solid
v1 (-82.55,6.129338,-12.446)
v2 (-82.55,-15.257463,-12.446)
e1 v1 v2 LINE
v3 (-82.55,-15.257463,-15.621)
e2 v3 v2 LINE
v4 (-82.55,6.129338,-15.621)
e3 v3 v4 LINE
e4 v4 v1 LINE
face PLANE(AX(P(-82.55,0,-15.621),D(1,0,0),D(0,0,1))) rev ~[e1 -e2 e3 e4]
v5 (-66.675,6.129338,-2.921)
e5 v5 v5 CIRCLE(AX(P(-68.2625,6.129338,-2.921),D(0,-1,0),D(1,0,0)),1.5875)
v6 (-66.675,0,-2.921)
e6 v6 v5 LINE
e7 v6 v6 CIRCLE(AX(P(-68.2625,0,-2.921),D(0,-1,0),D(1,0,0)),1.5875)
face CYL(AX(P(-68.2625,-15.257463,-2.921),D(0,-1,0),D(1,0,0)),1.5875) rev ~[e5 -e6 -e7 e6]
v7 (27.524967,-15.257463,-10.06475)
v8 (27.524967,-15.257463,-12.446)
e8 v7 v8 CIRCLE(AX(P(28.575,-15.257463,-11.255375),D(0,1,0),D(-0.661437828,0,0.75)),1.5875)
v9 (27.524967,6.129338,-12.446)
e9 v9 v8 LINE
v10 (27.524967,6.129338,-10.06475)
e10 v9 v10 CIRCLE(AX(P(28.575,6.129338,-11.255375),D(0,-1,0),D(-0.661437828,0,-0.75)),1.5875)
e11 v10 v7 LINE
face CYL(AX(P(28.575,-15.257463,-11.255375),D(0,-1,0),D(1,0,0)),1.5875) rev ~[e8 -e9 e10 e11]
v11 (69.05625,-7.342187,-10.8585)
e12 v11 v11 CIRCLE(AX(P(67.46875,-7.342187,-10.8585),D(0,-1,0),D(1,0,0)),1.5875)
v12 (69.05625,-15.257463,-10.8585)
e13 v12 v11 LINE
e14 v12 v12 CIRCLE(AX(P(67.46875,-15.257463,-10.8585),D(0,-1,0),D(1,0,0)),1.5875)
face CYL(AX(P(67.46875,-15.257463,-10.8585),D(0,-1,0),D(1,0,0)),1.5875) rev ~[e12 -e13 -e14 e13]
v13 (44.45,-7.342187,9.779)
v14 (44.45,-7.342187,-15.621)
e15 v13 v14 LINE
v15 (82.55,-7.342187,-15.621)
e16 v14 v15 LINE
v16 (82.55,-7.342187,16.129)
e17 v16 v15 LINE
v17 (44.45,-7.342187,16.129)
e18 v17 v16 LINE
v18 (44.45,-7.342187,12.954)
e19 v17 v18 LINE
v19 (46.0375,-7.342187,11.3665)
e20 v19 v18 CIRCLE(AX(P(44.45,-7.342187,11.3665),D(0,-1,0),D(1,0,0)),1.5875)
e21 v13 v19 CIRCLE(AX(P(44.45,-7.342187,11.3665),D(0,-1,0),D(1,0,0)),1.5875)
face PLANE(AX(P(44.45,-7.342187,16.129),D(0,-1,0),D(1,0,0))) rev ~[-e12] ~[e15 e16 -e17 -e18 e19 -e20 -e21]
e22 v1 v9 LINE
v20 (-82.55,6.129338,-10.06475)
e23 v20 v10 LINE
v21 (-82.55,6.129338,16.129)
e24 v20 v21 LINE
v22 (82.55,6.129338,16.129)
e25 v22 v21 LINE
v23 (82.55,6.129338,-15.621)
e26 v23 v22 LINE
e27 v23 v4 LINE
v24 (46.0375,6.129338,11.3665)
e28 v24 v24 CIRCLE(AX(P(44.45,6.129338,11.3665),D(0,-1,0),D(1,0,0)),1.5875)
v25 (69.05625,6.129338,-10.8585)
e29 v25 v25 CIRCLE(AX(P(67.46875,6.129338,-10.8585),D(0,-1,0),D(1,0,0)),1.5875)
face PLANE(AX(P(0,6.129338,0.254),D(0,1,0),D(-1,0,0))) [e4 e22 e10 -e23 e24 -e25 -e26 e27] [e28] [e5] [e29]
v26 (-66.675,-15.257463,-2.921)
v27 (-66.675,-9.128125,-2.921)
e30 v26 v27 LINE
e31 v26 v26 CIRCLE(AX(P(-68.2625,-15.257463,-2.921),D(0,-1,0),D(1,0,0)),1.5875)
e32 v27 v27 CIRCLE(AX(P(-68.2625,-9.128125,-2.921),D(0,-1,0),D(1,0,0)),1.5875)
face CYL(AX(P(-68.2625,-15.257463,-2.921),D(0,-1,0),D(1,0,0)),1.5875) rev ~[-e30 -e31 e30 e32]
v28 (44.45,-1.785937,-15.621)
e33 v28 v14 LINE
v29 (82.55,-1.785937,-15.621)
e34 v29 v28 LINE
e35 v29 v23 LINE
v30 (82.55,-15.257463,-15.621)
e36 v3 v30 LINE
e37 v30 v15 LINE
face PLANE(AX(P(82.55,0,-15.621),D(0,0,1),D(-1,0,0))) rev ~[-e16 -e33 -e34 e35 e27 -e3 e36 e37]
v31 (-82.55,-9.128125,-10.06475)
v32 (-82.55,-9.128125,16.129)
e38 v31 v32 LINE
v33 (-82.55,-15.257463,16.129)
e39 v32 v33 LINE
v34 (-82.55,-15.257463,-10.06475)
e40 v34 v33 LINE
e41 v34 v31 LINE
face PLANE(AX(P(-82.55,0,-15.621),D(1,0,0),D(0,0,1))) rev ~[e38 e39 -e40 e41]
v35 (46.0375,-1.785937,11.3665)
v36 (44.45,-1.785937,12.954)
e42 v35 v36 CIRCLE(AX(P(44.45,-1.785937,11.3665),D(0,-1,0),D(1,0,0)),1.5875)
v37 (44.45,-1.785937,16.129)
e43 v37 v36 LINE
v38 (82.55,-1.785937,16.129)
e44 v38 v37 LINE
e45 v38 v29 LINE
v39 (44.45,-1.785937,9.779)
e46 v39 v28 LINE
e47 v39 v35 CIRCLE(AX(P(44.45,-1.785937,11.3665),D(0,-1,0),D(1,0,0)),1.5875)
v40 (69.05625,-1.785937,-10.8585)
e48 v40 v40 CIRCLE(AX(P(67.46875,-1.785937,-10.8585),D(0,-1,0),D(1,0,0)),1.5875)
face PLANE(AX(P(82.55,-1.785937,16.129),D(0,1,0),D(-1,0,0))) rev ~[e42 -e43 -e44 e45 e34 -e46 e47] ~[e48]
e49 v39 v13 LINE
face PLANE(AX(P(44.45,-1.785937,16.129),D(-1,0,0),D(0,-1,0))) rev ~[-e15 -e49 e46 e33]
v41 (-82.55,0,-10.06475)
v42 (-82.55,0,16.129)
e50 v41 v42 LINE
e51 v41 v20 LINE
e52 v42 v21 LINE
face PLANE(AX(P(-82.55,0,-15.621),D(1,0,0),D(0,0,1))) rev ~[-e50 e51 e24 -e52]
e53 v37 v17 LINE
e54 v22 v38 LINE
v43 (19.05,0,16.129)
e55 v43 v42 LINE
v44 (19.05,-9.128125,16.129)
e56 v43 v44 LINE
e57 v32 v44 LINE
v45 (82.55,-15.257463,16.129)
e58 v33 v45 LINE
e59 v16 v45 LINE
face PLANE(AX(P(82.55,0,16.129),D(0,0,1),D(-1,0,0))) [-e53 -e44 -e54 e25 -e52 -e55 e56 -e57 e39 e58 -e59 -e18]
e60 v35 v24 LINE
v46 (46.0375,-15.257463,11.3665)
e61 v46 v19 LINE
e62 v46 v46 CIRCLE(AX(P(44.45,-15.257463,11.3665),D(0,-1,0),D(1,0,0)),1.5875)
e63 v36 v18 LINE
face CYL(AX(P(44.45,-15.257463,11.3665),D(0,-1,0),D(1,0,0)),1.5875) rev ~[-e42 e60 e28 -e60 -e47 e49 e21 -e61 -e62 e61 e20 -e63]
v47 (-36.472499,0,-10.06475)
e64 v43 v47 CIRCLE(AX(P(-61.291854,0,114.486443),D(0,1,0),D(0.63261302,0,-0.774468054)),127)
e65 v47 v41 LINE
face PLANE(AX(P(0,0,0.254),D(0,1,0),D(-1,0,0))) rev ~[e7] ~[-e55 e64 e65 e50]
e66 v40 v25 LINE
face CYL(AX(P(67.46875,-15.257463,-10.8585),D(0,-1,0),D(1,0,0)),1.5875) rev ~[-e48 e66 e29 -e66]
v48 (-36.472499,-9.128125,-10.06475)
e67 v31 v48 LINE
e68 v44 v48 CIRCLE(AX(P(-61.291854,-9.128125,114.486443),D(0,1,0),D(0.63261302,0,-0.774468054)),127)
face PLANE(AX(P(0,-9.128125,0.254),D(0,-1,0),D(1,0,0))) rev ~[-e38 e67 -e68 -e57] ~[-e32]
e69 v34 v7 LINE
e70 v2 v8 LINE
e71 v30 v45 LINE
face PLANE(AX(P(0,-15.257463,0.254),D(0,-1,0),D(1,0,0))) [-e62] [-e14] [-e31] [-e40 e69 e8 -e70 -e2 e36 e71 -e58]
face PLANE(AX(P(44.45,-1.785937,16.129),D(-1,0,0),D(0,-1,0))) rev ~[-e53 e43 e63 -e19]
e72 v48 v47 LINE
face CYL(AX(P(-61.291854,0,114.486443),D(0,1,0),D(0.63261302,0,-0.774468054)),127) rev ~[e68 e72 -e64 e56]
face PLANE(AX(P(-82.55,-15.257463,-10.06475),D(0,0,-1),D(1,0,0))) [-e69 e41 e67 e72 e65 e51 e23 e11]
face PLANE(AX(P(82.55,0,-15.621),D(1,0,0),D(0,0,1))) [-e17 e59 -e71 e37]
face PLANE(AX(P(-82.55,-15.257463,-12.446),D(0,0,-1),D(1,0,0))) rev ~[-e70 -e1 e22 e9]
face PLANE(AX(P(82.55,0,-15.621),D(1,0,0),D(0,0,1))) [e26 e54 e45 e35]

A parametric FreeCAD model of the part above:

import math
import FreeCAD as App
import Part
import Sketcher
from FreeCAD import Vector
Q = App.Units.Quantity


def add_polygon(sketch, points):
    """Adds a closed chain of lines whose ends are joined by coincident constraints."""
    first, n = sketch.GeometryCount, len(points)
    for a, b in zip(points, points[1:] + points[:1]):
        sketch.addGeometry(Part.LineSegment(App.Vector(*a, 0), App.Vector(*b, 0)), False)
    for i in range(n):
        sketch.addConstraint(Sketcher.Constraint("Coincident", first + i, 2, first + (i + 1) % n, 1))

doc = App.newDocument("Part")
params = doc.addObject("Spreadsheet::Sheet", "Params")
for row, (alias, value) in enumerate([
    ("sketch1_radius", "5 in"),
    ("sketch1_width", "1 in"),
    ("sketch1_width2", "6.5 in"),
    ("sketch1_width3", "2.5 in"),
    ("sketch1_height", "1.25 in"),
    ("pad1_length", "0.359375 in"),
    ("sketch2_width", "6.5 in"),
    ("sketch2_height", "1.25 in"),
    ("pad2_length", "6.129338 mm"),
    ("sketch3_width", "6.5 in"),
    ("sketch3_height", "1.25 in"),
    ("pad3_length", "6.129338 mm"),
    ("sketch4_width", "4.375 in"),
    ("sketch4_height", "0.09375 in"),
    ("sketch5_diameter", "0.125 in"),
    ("sketch6_width", "1.5 in"),
    ("sketch6_height", "0.21875 in"),
], start=1):
    params.set(f"A{row}", alias)
    params.set(f"B{row}", "=" + value)
    params.setAlias(f"B{row}", alias)

body = doc.addObject("PartDesign::Body", "Body")

# Sketch on XZ plane
sketch1 = body.newObject("Sketcher::SketchObject", "Sketch")
sketch1.AttachmentSupport = (doc.getObject("XZ_Plane"), [""])
sketch1.MapMode = "FlatFace"
sketch1.addGeometry(Part.LineSegment(Vector(-57.1, -12.4, 0), Vector(-82.5, -12.4, 0)), False)
sketch1.addGeometry(Part.LineSegment(Vector(-82.5, -12.4, 0), Vector(-82.5, -15.6, 0)), False)
sketch1.addGeometry(Part.LineSegment(Vector(-82.5, -15.6, 0), Vector(82.5, -15.6, 0)), False)
sketch1.addGeometry(Part.LineSegment(Vector(82.5, -15.6, 0), Vector(82.5, 16.1, 0)), False)
sketch1.addGeometry(Part.LineSegment(Vector(82.5, 16.1, 0), Vector(19.1, 16.1, 0)), False)
sketch1.addGeometry(Part.ArcOfCircle(Part.Circle(Vector(-61.3, 114.5, 0), Vector(0, 0, 1), 127), math.radians(-88), math.radians(-51)), False)
sketch1.addConstraint(Sketcher.Constraint("Coincident", 0, 2, 1, 1))
sketch1.addConstraint(Sketcher.Constraint("Coincident", 1, 2, 2, 1))
sketch1.addConstraint(Sketcher.Constraint("Coincident", 2, 2, 3, 1))
sketch1.addConstraint(Sketcher.Constraint("Coincident", 3, 2, 4, 1))
sketch1.addConstraint(Sketcher.Constraint("Coincident", 4, 2, 5, 2))
sketch1.addConstraint(Sketcher.Constraint("Coincident", 5, 1, 0, 1))
sketch1.addConstraint(Sketcher.Constraint("Horizontal", 0))
sketch1.addConstraint(Sketcher.Constraint("Vertical", 1))
sketch1.addConstraint(Sketcher.Constraint("Horizontal", 2))
sketch1.addConstraint(Sketcher.Constraint("Vertical", 3))
sketch1.addConstraint(Sketcher.Constraint("Horizontal", 4))
sketch1.addConstraint(Sketcher.Constraint("Radius", 5, Q("5 in")))
sketch1.addConstraint(Sketcher.Constraint("DistanceX", 0, 2, 0, 1, Q("1 in")))
sketch1.addConstraint(Sketcher.Constraint("DistanceX", 2, 1, 2, 2, Q("6.5 in")))
sketch1.addConstraint(Sketcher.Constraint("DistanceX", 4, 2, 4, 1, Q("2.5 in")))
sketch1.addConstraint(Sketcher.Constraint("DistanceY", 3, 1, 3, 2, Q("1.25 in")))
sketch1.addConstraint(Sketcher.Constraint("DistanceY", 1, 2, 1, 1, Q("0.125 in")))
sketch1.addConstraint(Sketcher.Constraint("DistanceX", 0, 2, -1, 1, Q("3.25 in")))
sketch1.addConstraint(Sketcher.Constraint("DistanceY", 0, 2, -1, 1, Q("0.49 in")))
sketch1.setExpression("Constraints[11]", "Params.sketch1_radius")
sketch1.setExpression("Constraints[12]", "Params.sketch1_width")
sketch1.setExpression("Constraints[13]", "Params.sketch1_width2")
sketch1.setExpression("Constraints[14]", "Params.sketch1_width3")
sketch1.setExpression("Constraints[15]", "Params.sketch1_height")
pad1 = body.newObject("PartDesign::Pad", "Pad")
pad1.Profile = sketch1
pad1.setExpression("Length", "Params.pad1_length")

# Sketch on XZ plane
sketch2 = body.newObject("Sketcher::SketchObject", "Sketch001")
sketch2.AttachmentSupport = (doc.getObject("XZ_Plane"), [""])
sketch2.MapMode = "FlatFace"
sketch2.AttachmentOffset = App.Placement(Vector(0, 0, 0.359375 * 25.4), App.Rotation())
add_polygon(sketch2, [(-83, 16), (-83, -16), (83, -16), (83, 16)])  # lines 0-3
sketch2.addConstraint(Sketcher.Constraint("Vertical", 0))
sketch2.addConstraint(Sketcher.Constraint("Horizontal", 1))
sketch2.addConstraint(Sketcher.Constraint("Vertical", 2))
sketch2.addConstraint(Sketcher.Constraint("Horizontal", 3))
sketch2.addConstraint(Sketcher.Constraint("DistanceX", 1, 1, 1, 2, Q("6.5 in")))
sketch2.addConstraint(Sketcher.Constraint("DistanceY", 0, 2, 0, 1, Q("1.25 in")))
sketch2.addConstraint(Sketcher.Constraint("DistanceX", 0, 2, -1, 1, Q("3.25 in")))
sketch2.addConstraint(Sketcher.Constraint("DistanceY", 0, 2, -1, 1, Q("0.615 in")))
sketch2.setExpression("Constraints[8]", "Params.sketch2_width")
sketch2.setExpression("Constraints[9]", "Params.sketch2_height")
pad2 = body.newObject("PartDesign::Pad", "Pad001")
pad2.Profile = sketch2
pad2.setExpression("Length", "Params.pad2_length")

# Sketch on XZ plane
sketch3 = body.newObject("Sketcher::SketchObject", "Sketch002")
sketch3.AttachmentSupport = (doc.getObject("XZ_Plane"), [""])
sketch3.MapMode = "FlatFace"
add_polygon(sketch3, [(83, 16), (83, -16), (-83, -16), (-83, 16)])  # lines 0-3
sketch3.addConstraint(Sketcher.Constraint("Vertical", 0))
sketch3.addConstraint(Sketcher.Constraint("Horizontal", 1))
sketch3.addConstraint(Sketcher.Constraint("Vertical", 2))
sketch3.addConstraint(Sketcher.Constraint("Horizontal", 3))
sketch3.addConstraint(Sketcher.Constraint("DistanceX", 1, 2, 1, 1, Q("6.5 in")))
sketch3.addConstraint(Sketcher.Constraint("DistanceY", 0, 2, 0, 1, Q("1.25 in")))
sketch3.addConstraint(Sketcher.Constraint("DistanceX", -1, 1, 0, 2, Q("3.25 in")))
sketch3.addConstraint(Sketcher.Constraint("DistanceY", 0, 2, -1, 1, Q("0.615 in")))
sketch3.setExpression("Constraints[8]", "Params.sketch3_width")
sketch3.setExpression("Constraints[9]", "Params.sketch3_height")
pad3 = body.newObject("PartDesign::Pad", "Pad002")
pad3.Profile = sketch3
pad3.setExpression("Length", "Params.pad3_length")
pad3.Reversed = True

# Sketch on XZ plane
sketch4 = body.newObject("Sketcher::SketchObject", "Sketch003")
sketch4.AttachmentSupport = (doc.getObject("XZ_Plane"), [""])
sketch4.MapMode = "FlatFace"
sketch4.AttachmentOffset = App.Placement(Vector(0, 0, 15.257463), App.Rotation())
add_polygon(sketch4, [(-82.5, -10.1), (-82.5, -12.4), (28.6, -12.4), (28.6, -10.1)])  # lines 0-3
sketch4.addConstraint(Sketcher.Constraint("Vertical", 0))
sketch4.addConstraint(Sketcher.Constraint("Horizontal", 1))
sketch4.addConstraint(Sketcher.Constraint("Vertical", 2))
sketch4.addConstraint(Sketcher.Constraint("Horizontal", 3))
sketch4.addConstraint(Sketcher.Constraint("DistanceX", 1, 1, 1, 2, Q("4.375 in")))
sketch4.addConstraint(Sketcher.Constraint("DistanceY", 0, 2, 0, 1, Q("0.09375 in")))
sketch4.addConstraint(Sketcher.Constraint("DistanceX", 0, 2, -1, 1, Q("3.25 in")))
sketch4.addConstraint(Sketcher.Constraint("DistanceY", 0, 2, -1, 1, Q("0.49 in")))
sketch4.setExpression("Constraints[8]", "Params.sketch4_width")
sketch4.setExpression("Constraints[9]", "Params.sketch4_height")
pocket1 = body.newObject("PartDesign::Pocket", "Pocket")
pocket1.Profile = sketch4
pocket1.Type = "ThroughAll"

# Sketch on XZ plane
sketch5 = body.newObject("Sketcher::SketchObject", "Sketch004")
sketch5.AttachmentSupport = (doc.getObject("XZ_Plane"), [""])
sketch5.MapMode = "FlatFace"
sketch5.AttachmentOffset = App.Placement(Vector(0, 0, 15.257463), App.Rotation())
sketch5.addGeometry(Part.Circle(Vector(-68.3, -2.9, 0), Vector(0, 0, 1), 1.6), False)
sketch5.addGeometry(Part.Circle(Vector(28.6, -11.3, 0), Vector(0, 0, 1), 1.6), False)
sketch5.addGeometry(Part.Circle(Vector(44.5, 11.4, 0), Vector(0, 0, 1), 1.6), False)
sketch5.addGeometry(Part.Circle(Vector(67.5, -10.9, 0), Vector(0, 0, 1), 1.6), False)
sketch5.addConstraint(Sketcher.Constraint("Equal", 0, 1))
sketch5.addConstraint(Sketcher.Constraint("Equal", 1, 2))
sketch5.addConstraint(Sketcher.Constraint("Equal", 2, 3))
sketch5.addConstraint(Sketcher.Constraint("Diameter", 0, Q("0.125 in")))
sketch5.addConstraint(Sketcher.Constraint("DistanceX", -1, 1, 2, 3, Q("1.75 in")))
sketch5.addConstraint(Sketcher.Constraint("DistanceX", 0, 3, -1, 1, Q("2.6875 in")))
sketch5.addConstraint(Sketcher.Constraint("DistanceY", 0, 3, -1, 1, Q("0.115 in")))
sketch5.addConstraint(Sketcher.Constraint("DistanceX", -1, 1, 1, 3, Q("1.125 in")))
sketch5.addConstraint(Sketcher.Constraint("DistanceX", -1, 1, 3, 3, Q("2.65625 in")))
sketch5.addConstraint(Sketcher.Constraint("DistanceY", 1, 3, 0, 3, Q("0.328125 in")))
sketch5.addConstraint(Sketcher.Constraint("DistanceY", 1, 3, 2, 3, Q("0.890625 in")))
sketch5.addConstraint(Sketcher.Constraint("DistanceY", 3, 3, 2, 3, Q("0.875 in")))
sketch5.setExpression("Constraints[3]", "Params.sketch5_diameter")
pocket2 = body.newObject("PartDesign::Pocket", "Pocket001")
pocket2.Profile = sketch5
pocket2.Type = "ThroughAll"

# Sketch on XY plane
sketch6 = body.newObject("Sketcher::SketchObject", "Sketch005")
sketch6.AttachmentSupport = (doc.getObject("XY_Plane"), [""])
sketch6.MapMode = "FlatFace"
sketch6.AttachmentOffset = App.Placement(Vector(0, 0, 0.635 * 25.4), App.Rotation())
add_polygon(sketch6, [(83, -7), (83, -2), (44, -2), (44, -7)])  # lines 0-3
sketch6.addConstraint(Sketcher.Constraint("Vertical", 0))
sketch6.addConstraint(Sketcher.Constraint("Horizontal", 1))
sketch6.addConstraint(Sketcher.Constraint("Vertical", 2))
sketch6.addConstraint(Sketcher.Constraint("Horizontal", 3))
sketch6.addConstraint(Sketcher.Constraint("DistanceX", 1, 2, 1, 1, Q("1.5 in")))
sketch6.addConstraint(Sketcher.Constraint("DistanceY", 0, 1, 0, 2, Q("0.21875 in")))
sketch6.addConstraint(Sketcher.Constraint("DistanceX", -1, 1, 0, 2, Q("3.25 in")))
sketch6.addConstraint(Sketcher.Constraint("DistanceY", 0, 2, -1, 1, Q("1.785937 mm")))
sketch6.setExpression("Constraints[8]", "Params.sketch6_width")
sketch6.setExpression("Constraints[9]", "Params.sketch6_height")
pocket3 = body.newObject("PartDesign::Pocket", "Pocket002")
pocket3.Profile = sketch6
pocket3.Type = "ThroughAll"

doc.recompute()
